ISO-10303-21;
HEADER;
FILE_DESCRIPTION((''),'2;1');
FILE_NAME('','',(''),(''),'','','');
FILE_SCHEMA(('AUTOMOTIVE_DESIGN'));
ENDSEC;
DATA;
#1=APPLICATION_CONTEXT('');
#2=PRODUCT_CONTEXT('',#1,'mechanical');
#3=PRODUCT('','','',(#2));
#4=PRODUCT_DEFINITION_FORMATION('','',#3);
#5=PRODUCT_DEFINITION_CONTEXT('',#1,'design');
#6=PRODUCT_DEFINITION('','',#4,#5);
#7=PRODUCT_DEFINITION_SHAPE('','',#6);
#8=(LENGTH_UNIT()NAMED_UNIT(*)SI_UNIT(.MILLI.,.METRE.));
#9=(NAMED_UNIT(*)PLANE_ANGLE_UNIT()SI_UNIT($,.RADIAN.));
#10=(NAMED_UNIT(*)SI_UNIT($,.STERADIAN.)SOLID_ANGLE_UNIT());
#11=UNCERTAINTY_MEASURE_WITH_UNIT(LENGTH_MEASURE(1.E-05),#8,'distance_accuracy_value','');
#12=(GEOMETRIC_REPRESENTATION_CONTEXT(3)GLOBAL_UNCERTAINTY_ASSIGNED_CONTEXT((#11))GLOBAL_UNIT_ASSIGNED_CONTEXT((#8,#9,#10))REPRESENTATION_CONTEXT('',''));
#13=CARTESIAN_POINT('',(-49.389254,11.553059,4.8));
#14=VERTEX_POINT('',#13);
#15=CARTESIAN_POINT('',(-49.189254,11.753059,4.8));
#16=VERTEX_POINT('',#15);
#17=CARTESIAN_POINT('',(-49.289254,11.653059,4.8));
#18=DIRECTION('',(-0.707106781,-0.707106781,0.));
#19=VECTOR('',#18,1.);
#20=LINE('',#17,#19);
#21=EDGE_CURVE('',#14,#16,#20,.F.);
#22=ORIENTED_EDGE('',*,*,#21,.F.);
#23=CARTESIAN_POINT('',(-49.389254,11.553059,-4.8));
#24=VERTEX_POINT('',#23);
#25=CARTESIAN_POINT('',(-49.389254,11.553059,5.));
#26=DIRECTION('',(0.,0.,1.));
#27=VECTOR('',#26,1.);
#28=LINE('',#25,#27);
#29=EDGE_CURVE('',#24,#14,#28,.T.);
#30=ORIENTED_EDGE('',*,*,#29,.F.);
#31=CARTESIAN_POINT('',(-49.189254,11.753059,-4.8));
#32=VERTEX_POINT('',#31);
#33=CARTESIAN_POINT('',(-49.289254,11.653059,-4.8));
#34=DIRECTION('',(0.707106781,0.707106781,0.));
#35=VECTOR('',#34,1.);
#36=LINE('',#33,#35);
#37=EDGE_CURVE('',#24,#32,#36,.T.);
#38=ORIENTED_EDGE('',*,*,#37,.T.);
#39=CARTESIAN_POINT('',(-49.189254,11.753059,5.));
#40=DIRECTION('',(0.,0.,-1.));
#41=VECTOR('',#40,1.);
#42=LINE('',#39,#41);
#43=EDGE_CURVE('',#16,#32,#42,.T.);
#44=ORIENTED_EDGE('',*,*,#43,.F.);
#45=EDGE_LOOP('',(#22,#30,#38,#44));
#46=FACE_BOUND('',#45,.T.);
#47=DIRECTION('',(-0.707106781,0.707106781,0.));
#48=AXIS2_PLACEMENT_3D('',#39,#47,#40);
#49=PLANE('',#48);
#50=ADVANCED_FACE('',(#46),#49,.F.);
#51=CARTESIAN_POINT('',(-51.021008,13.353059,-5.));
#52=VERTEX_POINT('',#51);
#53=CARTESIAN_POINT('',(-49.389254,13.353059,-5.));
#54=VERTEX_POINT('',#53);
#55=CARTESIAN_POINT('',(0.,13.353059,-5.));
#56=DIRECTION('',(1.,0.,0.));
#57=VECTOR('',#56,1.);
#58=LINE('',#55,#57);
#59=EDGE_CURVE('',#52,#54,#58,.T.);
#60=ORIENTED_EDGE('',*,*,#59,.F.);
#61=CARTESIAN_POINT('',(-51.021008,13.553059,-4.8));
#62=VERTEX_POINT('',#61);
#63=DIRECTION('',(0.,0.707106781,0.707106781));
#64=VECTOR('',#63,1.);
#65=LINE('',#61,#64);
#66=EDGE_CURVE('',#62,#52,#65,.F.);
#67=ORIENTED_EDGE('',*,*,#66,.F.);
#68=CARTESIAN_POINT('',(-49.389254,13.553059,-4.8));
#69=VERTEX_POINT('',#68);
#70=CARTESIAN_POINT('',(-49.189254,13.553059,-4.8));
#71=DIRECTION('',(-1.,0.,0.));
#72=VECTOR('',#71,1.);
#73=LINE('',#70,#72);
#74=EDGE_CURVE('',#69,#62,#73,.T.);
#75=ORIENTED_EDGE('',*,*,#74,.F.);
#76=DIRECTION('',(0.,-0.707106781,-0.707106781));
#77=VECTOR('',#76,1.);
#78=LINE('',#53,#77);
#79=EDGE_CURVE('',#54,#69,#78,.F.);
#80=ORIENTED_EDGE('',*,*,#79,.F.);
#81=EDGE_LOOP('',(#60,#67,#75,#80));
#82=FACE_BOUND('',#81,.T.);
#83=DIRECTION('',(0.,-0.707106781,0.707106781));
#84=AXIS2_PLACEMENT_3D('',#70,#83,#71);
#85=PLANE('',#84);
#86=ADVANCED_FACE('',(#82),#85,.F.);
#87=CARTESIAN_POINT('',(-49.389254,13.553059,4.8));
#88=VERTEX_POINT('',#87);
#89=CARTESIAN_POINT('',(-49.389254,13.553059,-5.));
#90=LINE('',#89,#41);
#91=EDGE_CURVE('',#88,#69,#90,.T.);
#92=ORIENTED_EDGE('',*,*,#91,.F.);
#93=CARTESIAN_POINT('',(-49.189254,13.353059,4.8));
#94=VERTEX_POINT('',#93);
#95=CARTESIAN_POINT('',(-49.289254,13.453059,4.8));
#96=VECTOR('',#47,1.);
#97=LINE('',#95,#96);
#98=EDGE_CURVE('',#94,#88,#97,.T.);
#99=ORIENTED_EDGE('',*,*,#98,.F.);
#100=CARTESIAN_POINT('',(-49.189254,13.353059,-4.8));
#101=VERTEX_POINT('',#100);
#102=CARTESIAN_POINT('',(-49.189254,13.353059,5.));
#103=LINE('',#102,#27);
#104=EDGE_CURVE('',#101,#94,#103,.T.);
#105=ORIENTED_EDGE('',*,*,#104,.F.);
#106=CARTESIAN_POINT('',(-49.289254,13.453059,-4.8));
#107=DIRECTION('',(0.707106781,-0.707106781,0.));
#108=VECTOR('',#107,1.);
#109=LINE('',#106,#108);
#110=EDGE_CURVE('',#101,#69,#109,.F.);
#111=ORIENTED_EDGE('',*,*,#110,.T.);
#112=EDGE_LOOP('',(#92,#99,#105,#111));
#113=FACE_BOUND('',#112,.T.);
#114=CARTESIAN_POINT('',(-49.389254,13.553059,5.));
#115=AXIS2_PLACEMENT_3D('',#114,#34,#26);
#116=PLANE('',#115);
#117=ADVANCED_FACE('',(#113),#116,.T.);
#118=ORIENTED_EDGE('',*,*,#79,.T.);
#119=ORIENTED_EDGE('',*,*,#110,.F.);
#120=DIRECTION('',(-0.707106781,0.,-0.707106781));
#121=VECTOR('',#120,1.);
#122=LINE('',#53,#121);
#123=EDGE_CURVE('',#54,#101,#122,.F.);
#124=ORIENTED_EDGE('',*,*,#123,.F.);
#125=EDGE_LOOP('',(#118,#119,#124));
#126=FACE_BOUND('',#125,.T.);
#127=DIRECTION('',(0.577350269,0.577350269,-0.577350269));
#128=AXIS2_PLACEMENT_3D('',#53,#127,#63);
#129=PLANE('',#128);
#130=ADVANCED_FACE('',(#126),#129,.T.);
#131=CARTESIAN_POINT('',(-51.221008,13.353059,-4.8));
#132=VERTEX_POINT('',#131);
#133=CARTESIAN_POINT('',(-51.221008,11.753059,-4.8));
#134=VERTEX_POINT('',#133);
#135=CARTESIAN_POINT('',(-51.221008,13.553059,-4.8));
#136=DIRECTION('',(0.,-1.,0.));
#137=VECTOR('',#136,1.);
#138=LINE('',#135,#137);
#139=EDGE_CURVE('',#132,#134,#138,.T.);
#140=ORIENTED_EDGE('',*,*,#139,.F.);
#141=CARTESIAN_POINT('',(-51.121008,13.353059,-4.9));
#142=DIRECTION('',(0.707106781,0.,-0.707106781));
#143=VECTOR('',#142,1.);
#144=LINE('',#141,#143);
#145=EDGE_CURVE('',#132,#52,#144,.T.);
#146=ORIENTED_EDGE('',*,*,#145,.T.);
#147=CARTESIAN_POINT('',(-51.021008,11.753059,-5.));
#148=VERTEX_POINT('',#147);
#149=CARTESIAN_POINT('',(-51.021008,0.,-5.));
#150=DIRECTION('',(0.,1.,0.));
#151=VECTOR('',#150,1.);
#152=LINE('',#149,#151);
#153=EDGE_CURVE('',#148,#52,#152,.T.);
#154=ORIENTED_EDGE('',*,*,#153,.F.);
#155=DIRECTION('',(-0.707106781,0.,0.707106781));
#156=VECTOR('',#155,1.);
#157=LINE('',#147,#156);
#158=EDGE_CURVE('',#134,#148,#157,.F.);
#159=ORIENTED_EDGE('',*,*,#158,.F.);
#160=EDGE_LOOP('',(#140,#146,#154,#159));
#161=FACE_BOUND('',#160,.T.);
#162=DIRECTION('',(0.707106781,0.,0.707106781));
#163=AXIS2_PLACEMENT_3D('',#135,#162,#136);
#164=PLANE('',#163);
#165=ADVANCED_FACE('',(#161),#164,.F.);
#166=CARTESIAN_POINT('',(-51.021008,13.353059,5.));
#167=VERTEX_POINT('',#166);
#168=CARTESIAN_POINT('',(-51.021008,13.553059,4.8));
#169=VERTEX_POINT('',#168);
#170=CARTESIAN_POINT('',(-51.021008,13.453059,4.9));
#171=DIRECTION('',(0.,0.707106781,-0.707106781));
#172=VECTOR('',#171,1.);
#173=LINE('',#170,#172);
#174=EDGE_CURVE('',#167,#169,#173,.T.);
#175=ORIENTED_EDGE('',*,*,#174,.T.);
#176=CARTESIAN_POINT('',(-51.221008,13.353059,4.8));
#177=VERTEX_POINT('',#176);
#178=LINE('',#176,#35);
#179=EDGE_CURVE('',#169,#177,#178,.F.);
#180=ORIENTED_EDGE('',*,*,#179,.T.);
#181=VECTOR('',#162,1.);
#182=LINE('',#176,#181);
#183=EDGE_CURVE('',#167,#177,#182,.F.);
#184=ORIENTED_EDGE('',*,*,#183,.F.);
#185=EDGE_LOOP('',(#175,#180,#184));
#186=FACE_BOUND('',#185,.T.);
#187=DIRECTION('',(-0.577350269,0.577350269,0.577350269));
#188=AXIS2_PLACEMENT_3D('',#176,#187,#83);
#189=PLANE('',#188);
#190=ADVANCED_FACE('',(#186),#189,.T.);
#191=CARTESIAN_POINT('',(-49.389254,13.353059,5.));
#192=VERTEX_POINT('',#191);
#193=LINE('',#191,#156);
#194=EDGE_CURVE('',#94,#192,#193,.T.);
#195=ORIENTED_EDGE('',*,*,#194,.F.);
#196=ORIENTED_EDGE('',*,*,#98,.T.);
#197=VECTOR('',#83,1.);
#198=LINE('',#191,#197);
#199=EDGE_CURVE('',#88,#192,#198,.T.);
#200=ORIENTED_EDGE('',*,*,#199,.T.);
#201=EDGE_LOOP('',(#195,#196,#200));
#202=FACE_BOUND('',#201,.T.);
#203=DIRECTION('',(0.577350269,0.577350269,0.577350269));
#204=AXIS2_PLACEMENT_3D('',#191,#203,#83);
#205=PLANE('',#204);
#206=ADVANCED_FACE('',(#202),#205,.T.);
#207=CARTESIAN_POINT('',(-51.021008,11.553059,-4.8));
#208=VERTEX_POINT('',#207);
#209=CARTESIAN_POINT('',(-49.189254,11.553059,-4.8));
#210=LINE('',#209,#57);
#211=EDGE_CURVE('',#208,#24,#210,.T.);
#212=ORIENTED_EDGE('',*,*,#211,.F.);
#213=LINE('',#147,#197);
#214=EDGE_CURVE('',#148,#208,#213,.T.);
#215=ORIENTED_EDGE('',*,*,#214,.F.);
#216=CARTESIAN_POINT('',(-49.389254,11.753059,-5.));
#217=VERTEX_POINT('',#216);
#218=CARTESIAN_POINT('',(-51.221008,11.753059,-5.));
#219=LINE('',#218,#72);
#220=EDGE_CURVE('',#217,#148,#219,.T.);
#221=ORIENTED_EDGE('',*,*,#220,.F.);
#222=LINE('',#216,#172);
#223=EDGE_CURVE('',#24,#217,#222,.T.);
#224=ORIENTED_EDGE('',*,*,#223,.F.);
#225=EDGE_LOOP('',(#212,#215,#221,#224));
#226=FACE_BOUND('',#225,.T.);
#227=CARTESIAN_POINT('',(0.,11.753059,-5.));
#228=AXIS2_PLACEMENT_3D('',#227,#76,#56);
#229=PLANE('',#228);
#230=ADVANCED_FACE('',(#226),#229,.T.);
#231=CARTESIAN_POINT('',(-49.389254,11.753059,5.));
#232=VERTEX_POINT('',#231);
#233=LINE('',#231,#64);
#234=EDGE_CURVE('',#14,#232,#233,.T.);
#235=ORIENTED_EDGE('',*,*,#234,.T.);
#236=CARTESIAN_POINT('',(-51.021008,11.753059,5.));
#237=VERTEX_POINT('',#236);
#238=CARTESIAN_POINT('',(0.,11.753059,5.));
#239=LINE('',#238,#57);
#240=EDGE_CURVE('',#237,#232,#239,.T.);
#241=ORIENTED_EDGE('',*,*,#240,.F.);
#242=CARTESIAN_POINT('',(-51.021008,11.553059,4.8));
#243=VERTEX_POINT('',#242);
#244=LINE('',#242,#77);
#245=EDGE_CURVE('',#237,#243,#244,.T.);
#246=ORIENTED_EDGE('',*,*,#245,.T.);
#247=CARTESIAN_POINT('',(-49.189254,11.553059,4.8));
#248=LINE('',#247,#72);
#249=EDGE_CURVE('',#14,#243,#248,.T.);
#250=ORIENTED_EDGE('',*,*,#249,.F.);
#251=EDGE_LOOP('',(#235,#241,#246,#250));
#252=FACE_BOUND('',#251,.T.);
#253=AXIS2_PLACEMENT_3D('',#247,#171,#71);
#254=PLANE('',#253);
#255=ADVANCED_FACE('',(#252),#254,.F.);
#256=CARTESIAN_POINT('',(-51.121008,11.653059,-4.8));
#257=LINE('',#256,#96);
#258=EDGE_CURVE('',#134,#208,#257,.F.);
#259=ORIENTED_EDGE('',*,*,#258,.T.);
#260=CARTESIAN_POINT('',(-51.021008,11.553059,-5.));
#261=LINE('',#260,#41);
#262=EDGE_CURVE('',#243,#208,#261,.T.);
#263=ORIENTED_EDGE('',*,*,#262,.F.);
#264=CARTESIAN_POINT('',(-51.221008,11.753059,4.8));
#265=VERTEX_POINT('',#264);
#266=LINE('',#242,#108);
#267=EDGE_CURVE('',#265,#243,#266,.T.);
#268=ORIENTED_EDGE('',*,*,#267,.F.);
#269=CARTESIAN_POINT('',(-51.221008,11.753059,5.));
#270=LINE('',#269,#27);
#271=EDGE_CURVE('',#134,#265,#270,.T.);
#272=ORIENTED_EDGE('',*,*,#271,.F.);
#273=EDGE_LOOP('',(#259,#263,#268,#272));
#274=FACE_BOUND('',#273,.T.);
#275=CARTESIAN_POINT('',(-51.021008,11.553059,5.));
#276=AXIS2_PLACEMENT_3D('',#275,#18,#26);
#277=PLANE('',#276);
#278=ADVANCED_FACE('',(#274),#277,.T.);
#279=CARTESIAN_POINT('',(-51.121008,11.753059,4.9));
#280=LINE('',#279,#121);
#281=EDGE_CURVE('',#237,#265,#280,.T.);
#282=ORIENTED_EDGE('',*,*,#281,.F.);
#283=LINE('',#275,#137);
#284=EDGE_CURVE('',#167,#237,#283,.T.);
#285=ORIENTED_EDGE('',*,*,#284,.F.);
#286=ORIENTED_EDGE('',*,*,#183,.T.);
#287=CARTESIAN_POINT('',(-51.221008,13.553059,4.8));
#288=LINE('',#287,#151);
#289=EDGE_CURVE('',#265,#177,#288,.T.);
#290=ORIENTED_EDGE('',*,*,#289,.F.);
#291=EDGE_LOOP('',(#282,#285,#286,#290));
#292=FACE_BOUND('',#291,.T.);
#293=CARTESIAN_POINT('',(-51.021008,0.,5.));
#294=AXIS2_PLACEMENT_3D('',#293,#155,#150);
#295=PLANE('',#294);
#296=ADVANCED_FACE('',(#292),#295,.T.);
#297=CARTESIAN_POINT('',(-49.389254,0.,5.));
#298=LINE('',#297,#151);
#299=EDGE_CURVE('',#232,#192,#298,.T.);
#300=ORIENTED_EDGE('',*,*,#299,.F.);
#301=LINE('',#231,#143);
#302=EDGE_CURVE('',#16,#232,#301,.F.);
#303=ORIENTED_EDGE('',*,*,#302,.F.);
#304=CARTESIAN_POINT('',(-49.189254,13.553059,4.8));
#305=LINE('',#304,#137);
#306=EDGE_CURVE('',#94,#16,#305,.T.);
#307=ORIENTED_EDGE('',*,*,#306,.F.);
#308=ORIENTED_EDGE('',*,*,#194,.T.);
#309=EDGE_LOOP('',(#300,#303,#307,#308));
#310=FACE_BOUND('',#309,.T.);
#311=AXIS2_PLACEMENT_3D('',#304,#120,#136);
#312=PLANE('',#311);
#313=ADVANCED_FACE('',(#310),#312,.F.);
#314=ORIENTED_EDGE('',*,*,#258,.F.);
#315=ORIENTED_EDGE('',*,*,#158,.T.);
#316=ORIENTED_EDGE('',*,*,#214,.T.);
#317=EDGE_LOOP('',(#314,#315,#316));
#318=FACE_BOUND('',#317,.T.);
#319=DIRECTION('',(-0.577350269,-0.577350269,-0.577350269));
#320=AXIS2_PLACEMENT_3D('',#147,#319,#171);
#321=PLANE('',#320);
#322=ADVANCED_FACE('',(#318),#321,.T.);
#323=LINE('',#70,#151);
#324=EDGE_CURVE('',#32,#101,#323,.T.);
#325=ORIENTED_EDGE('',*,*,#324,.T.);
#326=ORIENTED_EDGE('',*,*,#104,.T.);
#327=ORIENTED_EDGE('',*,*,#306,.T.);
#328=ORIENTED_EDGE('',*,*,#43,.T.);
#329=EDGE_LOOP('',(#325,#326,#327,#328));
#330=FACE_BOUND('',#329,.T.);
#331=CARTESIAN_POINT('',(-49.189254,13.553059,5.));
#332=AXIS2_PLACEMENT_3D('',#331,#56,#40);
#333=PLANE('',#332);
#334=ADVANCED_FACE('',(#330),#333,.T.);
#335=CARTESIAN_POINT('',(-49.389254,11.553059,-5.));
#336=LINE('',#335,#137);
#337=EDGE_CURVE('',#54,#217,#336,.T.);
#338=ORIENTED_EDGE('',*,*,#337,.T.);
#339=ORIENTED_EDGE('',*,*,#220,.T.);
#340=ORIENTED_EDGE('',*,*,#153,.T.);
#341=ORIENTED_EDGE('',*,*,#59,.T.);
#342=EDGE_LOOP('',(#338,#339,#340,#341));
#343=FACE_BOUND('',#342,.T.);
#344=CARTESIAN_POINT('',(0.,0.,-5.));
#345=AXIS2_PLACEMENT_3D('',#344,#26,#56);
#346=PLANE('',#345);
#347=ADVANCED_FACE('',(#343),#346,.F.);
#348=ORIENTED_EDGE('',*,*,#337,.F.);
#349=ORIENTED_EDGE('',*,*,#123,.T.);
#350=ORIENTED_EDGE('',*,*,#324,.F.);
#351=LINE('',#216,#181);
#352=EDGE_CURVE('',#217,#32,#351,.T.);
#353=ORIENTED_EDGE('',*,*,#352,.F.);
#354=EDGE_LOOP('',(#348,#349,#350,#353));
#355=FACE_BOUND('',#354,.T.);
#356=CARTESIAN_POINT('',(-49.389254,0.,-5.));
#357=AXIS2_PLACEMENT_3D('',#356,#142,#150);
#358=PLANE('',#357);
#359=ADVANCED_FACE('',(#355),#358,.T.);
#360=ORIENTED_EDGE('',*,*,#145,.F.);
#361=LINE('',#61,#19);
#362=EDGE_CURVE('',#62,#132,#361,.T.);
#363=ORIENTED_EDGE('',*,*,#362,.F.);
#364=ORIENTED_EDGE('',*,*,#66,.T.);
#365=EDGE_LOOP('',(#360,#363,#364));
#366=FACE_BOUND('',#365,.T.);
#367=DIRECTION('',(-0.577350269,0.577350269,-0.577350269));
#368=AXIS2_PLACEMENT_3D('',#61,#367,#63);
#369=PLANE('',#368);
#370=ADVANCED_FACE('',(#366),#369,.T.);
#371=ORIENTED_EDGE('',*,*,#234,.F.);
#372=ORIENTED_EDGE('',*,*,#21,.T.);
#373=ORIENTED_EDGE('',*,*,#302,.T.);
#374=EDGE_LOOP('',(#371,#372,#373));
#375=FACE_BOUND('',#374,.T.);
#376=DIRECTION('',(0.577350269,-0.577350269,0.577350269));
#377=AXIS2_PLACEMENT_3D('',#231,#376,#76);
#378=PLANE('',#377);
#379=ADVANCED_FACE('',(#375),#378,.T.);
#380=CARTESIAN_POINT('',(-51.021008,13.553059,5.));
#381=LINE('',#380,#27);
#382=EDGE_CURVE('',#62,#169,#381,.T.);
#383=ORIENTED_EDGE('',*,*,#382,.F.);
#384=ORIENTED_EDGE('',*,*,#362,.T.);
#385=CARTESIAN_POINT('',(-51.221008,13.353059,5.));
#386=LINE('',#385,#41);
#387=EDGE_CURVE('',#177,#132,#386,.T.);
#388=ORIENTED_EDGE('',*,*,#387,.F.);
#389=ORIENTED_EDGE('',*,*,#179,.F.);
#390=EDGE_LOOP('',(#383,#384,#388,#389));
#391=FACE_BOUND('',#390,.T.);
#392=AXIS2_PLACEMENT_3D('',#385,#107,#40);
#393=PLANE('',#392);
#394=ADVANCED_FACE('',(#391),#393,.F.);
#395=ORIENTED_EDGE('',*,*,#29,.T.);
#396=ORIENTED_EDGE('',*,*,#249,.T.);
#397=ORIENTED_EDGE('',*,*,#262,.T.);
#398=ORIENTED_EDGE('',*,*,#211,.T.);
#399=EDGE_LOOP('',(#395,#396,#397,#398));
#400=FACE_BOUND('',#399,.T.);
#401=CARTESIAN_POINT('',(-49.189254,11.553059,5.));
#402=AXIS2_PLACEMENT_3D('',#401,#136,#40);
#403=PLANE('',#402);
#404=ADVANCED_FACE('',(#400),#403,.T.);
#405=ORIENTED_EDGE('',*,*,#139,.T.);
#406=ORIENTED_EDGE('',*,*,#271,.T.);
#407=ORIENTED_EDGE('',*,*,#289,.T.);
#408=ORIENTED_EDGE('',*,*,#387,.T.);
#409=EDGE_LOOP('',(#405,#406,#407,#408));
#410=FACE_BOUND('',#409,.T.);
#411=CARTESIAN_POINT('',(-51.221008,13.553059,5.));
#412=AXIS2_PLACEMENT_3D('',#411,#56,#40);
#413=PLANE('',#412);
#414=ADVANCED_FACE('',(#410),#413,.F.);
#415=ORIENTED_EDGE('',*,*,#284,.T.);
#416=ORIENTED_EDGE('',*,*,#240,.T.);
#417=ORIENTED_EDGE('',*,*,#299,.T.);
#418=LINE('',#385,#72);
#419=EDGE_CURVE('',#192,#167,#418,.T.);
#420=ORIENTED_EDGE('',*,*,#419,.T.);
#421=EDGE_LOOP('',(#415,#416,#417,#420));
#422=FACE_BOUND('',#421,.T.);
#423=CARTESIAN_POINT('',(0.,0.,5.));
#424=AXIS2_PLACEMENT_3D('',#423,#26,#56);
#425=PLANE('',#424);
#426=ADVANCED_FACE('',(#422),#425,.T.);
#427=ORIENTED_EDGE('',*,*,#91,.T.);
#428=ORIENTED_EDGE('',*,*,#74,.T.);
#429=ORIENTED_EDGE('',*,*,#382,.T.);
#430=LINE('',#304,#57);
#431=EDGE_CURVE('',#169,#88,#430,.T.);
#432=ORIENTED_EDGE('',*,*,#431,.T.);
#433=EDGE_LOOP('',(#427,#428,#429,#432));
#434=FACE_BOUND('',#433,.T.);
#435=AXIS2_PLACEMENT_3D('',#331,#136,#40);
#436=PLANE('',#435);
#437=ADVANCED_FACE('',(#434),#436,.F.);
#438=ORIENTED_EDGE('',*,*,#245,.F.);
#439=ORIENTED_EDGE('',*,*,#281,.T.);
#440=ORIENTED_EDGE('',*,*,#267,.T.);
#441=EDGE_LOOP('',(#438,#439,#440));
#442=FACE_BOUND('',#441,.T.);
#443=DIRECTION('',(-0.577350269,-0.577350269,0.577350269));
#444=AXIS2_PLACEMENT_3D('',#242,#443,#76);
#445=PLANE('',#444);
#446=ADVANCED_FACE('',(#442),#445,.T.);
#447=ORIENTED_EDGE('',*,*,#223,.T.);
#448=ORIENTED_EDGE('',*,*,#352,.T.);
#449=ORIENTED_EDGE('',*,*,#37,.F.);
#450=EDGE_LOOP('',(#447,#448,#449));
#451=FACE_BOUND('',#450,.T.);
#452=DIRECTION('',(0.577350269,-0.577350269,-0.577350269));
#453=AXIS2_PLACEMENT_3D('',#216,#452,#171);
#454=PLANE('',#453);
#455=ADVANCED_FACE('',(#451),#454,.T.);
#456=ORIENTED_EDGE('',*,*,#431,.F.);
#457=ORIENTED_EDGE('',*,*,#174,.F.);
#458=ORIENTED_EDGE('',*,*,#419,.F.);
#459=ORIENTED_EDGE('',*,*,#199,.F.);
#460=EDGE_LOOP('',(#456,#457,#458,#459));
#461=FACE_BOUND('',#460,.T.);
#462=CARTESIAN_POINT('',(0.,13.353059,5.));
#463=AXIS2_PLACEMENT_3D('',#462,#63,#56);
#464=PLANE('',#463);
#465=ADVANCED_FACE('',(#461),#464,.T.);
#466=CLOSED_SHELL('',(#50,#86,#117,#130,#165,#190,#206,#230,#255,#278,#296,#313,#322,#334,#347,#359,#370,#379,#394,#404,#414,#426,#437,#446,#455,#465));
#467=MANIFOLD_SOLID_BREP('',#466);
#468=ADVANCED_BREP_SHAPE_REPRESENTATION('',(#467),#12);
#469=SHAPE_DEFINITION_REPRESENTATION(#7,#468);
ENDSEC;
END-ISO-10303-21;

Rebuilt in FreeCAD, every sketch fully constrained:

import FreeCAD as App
import Part
import Sketcher
from FreeCAD import Vector
Q = App.Units.Quantity


def add_polygon(sketch, points):
    """Adds a closed chain of lines whose ends are joined by coincident constraints."""
    first, n = sketch.GeometryCount, len(points)
    for a, b in zip(points, points[1:] + points[:1]):
        sketch.addGeometry(Part.LineSegment(App.Vector(*a, 0), App.Vector(*b, 0)), False)
    for i in range(n):
        sketch.addConstraint(Sketcher.Constraint("Coincident", first + i, 2, first + (i + 1) % n, 1))

doc = App.newDocument("Part")
params = doc.addObject("Spreadsheet::Sheet", "Params")
for row, (alias, value) in enumerate([
    ("sketch1_height", "2 mm"),
    ("pad1_length", "10 mm"),
    ("chamfer_size", "0.2 mm"),
], start=1):
    params.set(f"A{row}", alias)
    params.set(f"B{row}", "=" + value)
    params.setAlias(f"B{row}", alias)

body = doc.addObject("PartDesign::Body", "Body")

# Sketch on XY plane
sketch1 = doc.addObject("Sketcher::SketchObject", "Sketch")
body.addObject(sketch1)
sketch1.AttachmentSupport = (doc.XY_Plane, [""])
sketch1.MapMode = "FlatFace"
add_polygon(sketch1, [(-51.2, 13.6), (-51.2, 11.6), (-49.2, 11.6), (-49.2, 13.6)])  # lines 0-3
sketch1.addConstraint(Sketcher.Constraint("Vertical", 0))
sketch1.addConstraint(Sketcher.Constraint("Horizontal", 1))
sketch1.addConstraint(Sketcher.Constraint("Vertical", 2))
sketch1.addConstraint(Sketcher.Constraint("Horizontal", 3))
sketch1.addConstraint(Sketcher.Constraint("DistanceY", 0, 2, 0, 1, Q("2 mm")))
sketch1.addConstraint(Sketcher.Constraint("DistanceX", 1, 1, 1, 2, Q("2.031754 mm")))
sketch1.addConstraint(Sketcher.Constraint("DistanceX", 0, 2, -1, 1, Q("51.221008 mm")))
sketch1.addConstraint(Sketcher.Constraint("DistanceY", -1, 1, 0, 2, Q("11.553059 mm")))
sketch1.setExpression("Constraints[8]", "Params.sketch1_height")
pad1 = doc.addObject("PartDesign::Pad", "Pad")
body.addObject(pad1)
pad1.Profile = sketch1
pad1.setExpression("Length", "Params.pad1_length")
pad1.Midplane = True
doc.recompute()

chamfer = doc.addObject("PartDesign::Chamfer", "Chamfer")
body.addObject(chamfer)
chamfer.Base = (pad1, ["Edge1"])
chamfer.UseAllEdges = True
chamfer.setExpression("Size", "Params.chamfer_size")

doc.recompute()
